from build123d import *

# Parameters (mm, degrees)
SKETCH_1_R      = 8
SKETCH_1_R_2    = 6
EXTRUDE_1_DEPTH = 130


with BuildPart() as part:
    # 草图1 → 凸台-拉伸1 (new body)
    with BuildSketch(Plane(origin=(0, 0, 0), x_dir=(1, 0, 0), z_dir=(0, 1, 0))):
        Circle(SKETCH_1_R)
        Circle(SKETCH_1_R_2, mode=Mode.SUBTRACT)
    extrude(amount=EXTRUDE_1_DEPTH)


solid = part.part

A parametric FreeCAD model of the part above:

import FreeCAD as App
import Part
import Sketcher
from FreeCAD import Vector
Q = App.Units.Quantity

doc = App.newDocument("Part")
body = doc.addObject("PartDesign::Body", "Body")

sketch1 = body.newObject("Sketcher::SketchObject", "Sketch")
sketch1.AttachmentSupport = (doc.getObject("XZ_Plane"), [""])
sketch1.MapMode = "FlatFace"
sketch1.addGeometry([
    Part.Circle(Vector(0, 0, 0), Vector(0, 0, 1), 8),
    Part.Circle(Vector(0, 0, 0), Vector(0, 0, 1), 6),
], False)
sketch1.addConstraint([
    Sketcher.Constraint("Coincident", 0, 3, -1, 1),
    Sketcher.Constraint("Coincident", 1, 3, -1, 1),
    Sketcher.Constraint("Diameter", 0, Q("16 mm")),
    Sketcher.Constraint("Diameter", 1, Q("12 mm")),
])
pad1 = body.newObject("PartDesign::Pad", "Pad")
pad1.Profile = sketch1
pad1.Length = 130
pad1.Reversed = True

doc.recompute()
